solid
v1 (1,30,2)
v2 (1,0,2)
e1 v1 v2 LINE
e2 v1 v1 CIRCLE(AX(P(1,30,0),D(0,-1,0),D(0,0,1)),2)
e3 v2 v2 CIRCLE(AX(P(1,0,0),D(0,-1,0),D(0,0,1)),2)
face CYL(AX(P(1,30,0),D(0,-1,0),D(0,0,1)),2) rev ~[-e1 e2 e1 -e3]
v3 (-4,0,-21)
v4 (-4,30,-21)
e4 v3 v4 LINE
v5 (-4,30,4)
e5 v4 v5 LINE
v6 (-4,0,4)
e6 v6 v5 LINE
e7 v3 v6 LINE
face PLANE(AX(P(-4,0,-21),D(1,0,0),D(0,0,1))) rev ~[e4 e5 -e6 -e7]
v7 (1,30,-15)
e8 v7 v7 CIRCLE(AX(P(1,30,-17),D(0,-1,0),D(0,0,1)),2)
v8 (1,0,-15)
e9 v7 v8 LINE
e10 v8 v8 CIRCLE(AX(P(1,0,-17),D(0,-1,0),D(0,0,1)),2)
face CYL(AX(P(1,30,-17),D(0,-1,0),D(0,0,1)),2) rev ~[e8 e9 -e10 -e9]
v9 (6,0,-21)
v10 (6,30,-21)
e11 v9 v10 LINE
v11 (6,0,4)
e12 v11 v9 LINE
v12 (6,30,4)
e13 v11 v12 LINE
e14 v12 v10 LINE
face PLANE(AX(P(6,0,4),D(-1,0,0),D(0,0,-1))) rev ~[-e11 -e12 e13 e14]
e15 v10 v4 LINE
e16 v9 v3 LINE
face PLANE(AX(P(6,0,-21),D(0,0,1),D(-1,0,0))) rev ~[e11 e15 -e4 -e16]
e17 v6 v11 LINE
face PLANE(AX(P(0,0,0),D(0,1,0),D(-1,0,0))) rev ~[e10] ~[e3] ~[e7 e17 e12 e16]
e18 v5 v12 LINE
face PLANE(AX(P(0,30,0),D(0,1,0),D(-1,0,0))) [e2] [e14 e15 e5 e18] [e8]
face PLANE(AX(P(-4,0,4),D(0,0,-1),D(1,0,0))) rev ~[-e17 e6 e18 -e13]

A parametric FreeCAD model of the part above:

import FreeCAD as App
import Part
import Sketcher

V = App.Vector
Q = App.Units.Quantity

doc = App.newDocument("Part")
params = doc.addObject("Spreadsheet::Sheet", "Params")
for row, (alias, value) in enumerate([
    ("sketch1_width", "10 mm"),
    ("sketch1_height", "25 mm"),
    ("pad1_length", "30 mm"),
    ("sketch2_diameter", "4 mm"),
    ("hole_diameter", "4 mm"),
], start=1):
    params.set(f"A{row}", alias)
    params.set(f"B{row}", "=" + value)
    params.setAlias(f"B{row}", alias)

body = doc.addObject("PartDesign::Body", "Body")

# Sketch on XZ plane
sketch1 = doc.addObject("Sketcher::SketchObject", "Sketch")
body.addObject(sketch1)
sketch1.AttachmentSupport = (doc.XZ_Plane, [""])
sketch1.MapMode = "FlatFace"
sketch1.addGeometry(Part.LineSegment(V(-4, -21, 0), V(-4, 4, 0)), False)
sketch1.addGeometry(Part.LineSegment(V(-4, 4, 0), V(6, 4, 0)), False)
sketch1.addGeometry(Part.LineSegment(V(6, 4, 0), V(6, -21, 0)), False)
sketch1.addGeometry(Part.LineSegment(V(6, -21, 0), V(-4, -21, 0)), False)
sketch1.addConstraint(Sketcher.Constraint("Coincident", 0, 2, 1, 1))
sketch1.addConstraint(Sketcher.Constraint("Coincident", 1, 2, 2, 1))
sketch1.addConstraint(Sketcher.Constraint("Coincident", 2, 2, 3, 1))
sketch1.addConstraint(Sketcher.Constraint("Coincident", 3, 2, 0, 1))
sketch1.addConstraint(Sketcher.Constraint("Vertical", 0))
sketch1.addConstraint(Sketcher.Constraint("Horizontal", 1))
sketch1.addConstraint(Sketcher.Constraint("Vertical", 2))
sketch1.addConstraint(Sketcher.Constraint("Horizontal", 3))
sketch1.addConstraint(Sketcher.Constraint("DistanceX", 1, 1, 1, 2, Q("10 mm")))
sketch1.addConstraint(Sketcher.Constraint("DistanceY", 0, 1, 0, 2, Q("25 mm")))
sketch1.addConstraint(Sketcher.Constraint("DistanceX", 0, 2, -1, 1, Q("4 mm")))
sketch1.addConstraint(Sketcher.Constraint("DistanceY", -1, 1, 0, 2, Q("4 mm")))
sketch1.setExpression("Constraints[8]", "Params.sketch1_width")
sketch1.setExpression("Constraints[9]", "Params.sketch1_height")
pad1 = doc.addObject("PartDesign::Pad", "Pad")
body.addObject(pad1)
pad1.Profile = sketch1
pad1.setExpression("Length", "Params.pad1_length")
pad1.Reversed = True

# Sketch on XZ plane
sketch2 = doc.addObject("Sketcher::SketchObject", "Sketch001")
body.addObject(sketch2)
sketch2.AttachmentSupport = (doc.XZ_Plane, [""])
sketch2.MapMode = "FlatFace"
sketch2.AttachmentOffset = App.Placement(V(0, 0, -30), App.Rotation())
sketch2.addGeometry(Part.Circle(V(1, 0, 0), V(0, 0, 1), 2), False)
sketch2.addGeometry(Part.Circle(V(1, -17, 0), V(0, 0, 1), 2), False)
sketch2.addConstraint(Sketcher.Constraint("Equal", 0, 1))
sketch2.addConstraint(Sketcher.Constraint("PointOnObject", 0, 3, -1))
sketch2.addConstraint(Sketcher.Constraint("Vertical", 0, 3, 1, 3))
sketch2.addConstraint(Sketcher.Constraint("Diameter", 0, Q("4 mm")))
sketch2.addConstraint(Sketcher.Constraint("DistanceX", -1, 1, 0, 3, Q("1 mm")))
sketch2.addConstraint(Sketcher.Constraint("DistanceY", 1, 3, -1, 1, Q("17 mm")))
sketch2.setExpression("Constraints[3]", "Params.sketch2_diameter")
doc.recompute()
hole = doc.addObject("PartDesign::Hole", "Hole")
body.addObject(hole)
hole.Profile = sketch2
hole.ThreadType = "None"
hole.setExpression("Diameter", "Params.hole_diameter")
hole.DepthType = "ThroughAll"
hole.Reversed = True

doc.recompute()
